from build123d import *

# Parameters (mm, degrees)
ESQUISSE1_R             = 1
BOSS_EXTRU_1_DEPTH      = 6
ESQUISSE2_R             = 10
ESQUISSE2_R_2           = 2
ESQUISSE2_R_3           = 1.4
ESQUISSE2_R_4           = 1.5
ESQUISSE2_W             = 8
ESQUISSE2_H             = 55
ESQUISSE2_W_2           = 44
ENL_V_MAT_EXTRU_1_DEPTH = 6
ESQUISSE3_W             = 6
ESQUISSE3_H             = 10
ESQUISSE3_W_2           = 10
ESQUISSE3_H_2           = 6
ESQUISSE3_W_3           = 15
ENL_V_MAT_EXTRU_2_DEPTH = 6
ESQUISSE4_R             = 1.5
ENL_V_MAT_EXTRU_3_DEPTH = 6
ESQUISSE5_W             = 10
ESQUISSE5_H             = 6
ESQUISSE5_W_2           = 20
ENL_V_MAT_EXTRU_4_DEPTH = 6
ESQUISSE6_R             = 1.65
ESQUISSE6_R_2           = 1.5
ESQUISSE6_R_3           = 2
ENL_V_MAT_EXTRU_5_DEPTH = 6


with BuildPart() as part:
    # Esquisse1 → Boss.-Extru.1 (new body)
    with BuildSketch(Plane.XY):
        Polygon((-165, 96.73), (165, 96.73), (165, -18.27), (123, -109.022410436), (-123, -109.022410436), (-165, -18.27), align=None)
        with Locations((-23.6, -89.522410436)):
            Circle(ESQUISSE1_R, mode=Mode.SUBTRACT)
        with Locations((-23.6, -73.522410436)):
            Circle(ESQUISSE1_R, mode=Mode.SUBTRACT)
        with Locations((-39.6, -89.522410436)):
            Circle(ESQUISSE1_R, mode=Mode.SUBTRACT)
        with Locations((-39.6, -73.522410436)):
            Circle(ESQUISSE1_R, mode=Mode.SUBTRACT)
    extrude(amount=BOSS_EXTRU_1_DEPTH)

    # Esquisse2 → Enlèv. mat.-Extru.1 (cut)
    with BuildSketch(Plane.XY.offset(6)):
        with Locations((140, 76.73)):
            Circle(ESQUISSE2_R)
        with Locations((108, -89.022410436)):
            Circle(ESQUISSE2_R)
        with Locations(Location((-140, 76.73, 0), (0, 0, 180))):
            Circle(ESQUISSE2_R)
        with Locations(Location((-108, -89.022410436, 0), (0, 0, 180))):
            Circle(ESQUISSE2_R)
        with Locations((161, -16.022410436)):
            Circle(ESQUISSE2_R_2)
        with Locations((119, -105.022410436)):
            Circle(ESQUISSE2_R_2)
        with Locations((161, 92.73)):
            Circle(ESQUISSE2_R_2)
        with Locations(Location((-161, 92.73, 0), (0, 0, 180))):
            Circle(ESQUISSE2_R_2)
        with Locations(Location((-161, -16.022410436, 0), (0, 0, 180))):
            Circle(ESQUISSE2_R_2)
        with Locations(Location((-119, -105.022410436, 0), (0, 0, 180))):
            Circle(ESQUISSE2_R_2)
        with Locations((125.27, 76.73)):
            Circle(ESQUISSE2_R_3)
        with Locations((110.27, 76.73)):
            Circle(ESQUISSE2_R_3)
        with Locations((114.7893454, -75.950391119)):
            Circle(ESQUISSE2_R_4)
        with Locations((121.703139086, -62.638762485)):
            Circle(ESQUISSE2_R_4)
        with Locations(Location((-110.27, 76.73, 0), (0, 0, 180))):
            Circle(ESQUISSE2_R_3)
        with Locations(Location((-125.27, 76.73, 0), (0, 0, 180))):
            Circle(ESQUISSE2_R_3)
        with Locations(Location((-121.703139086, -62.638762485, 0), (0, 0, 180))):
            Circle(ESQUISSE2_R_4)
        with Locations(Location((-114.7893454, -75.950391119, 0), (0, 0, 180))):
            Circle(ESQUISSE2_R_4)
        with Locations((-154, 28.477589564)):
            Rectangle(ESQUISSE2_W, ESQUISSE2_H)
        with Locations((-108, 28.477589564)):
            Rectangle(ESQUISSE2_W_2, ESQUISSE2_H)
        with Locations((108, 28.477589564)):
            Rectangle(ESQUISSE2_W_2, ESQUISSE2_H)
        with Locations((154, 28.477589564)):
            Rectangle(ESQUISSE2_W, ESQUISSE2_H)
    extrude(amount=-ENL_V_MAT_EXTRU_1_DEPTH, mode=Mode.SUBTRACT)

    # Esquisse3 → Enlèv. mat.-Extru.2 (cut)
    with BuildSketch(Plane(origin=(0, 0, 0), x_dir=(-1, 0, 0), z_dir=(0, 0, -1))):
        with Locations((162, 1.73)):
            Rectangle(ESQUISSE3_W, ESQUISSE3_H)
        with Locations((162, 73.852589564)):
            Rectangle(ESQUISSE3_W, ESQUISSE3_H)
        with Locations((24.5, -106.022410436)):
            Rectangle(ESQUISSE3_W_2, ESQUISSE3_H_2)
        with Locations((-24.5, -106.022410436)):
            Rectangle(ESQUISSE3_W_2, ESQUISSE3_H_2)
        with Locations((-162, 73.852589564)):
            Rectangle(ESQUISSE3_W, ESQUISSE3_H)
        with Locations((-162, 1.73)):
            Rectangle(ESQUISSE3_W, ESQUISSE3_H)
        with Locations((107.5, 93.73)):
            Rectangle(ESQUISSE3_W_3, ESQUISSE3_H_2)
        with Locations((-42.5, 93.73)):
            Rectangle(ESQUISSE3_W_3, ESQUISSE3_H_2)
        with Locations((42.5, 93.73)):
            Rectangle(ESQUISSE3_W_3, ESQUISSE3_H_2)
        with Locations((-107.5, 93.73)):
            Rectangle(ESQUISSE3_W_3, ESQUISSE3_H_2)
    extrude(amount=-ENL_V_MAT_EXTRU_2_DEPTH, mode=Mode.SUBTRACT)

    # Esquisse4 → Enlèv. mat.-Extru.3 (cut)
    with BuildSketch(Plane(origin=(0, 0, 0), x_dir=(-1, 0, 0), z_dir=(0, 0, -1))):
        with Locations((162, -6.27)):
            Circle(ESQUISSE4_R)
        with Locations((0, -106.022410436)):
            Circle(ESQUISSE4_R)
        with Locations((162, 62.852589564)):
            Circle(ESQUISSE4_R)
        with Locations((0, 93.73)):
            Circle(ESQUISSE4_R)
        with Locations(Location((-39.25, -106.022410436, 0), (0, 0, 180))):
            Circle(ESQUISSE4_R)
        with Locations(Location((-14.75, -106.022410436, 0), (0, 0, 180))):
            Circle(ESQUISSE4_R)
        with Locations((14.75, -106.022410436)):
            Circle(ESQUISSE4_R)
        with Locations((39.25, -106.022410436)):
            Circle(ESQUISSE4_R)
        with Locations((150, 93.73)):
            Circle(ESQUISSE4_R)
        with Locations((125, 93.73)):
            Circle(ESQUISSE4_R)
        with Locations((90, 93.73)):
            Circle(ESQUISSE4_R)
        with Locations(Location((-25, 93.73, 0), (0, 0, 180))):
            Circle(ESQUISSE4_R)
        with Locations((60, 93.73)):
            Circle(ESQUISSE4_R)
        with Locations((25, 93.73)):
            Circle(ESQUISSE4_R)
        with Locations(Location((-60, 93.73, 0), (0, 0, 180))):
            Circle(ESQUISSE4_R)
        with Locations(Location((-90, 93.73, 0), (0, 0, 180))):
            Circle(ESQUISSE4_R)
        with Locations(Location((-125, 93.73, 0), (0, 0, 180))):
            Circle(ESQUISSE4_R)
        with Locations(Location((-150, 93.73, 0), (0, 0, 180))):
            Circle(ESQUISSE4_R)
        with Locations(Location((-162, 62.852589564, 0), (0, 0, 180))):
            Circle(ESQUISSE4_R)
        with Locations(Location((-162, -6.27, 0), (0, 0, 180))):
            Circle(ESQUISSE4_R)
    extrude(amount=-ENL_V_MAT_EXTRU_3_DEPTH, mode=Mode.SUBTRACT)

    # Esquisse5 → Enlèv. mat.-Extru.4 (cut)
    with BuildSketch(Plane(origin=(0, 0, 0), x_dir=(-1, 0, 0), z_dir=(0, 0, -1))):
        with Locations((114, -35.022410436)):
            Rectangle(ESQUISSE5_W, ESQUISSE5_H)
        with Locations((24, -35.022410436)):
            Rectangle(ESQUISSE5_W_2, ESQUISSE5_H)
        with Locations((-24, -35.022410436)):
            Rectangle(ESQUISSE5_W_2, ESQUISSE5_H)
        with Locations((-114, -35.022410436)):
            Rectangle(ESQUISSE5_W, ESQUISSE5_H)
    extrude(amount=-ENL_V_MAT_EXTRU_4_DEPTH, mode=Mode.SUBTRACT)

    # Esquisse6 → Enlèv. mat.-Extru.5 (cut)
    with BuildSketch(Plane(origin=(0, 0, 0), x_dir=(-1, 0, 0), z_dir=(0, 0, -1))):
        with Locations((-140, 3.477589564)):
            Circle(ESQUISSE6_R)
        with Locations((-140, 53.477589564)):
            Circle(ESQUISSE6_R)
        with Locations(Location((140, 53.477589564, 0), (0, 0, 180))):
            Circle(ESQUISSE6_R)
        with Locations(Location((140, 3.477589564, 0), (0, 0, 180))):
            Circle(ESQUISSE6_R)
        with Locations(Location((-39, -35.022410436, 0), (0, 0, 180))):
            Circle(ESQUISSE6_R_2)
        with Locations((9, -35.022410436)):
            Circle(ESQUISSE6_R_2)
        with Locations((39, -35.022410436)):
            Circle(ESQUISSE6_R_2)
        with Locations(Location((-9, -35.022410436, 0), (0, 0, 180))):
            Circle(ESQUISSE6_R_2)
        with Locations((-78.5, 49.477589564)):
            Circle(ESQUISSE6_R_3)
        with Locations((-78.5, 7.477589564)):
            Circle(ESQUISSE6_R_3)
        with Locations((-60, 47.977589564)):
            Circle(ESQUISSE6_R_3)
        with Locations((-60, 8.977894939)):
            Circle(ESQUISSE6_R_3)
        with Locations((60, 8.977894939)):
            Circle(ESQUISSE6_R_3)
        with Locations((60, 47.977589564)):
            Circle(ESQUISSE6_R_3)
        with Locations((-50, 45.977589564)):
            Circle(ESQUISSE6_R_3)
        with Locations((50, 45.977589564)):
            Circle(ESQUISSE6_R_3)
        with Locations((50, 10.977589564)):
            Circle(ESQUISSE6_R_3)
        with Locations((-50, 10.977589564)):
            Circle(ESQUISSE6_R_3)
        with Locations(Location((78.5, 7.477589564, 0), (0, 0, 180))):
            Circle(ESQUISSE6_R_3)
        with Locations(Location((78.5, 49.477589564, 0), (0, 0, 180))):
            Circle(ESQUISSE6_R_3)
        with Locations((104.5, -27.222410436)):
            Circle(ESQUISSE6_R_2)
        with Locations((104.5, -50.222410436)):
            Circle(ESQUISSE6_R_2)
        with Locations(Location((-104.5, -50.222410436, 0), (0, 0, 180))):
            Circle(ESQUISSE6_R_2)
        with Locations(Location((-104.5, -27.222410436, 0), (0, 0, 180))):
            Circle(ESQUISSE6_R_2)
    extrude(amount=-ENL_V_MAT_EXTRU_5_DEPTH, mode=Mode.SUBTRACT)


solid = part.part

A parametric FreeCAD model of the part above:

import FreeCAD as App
import Part
import Sketcher

V = App.Vector
Q = App.Units.Quantity

doc = App.newDocument("Part")
params = doc.addObject("Spreadsheet::Sheet", "Params")
for row, (alias, value) in enumerate([
    ("sketch1_diameter", "2 mm"),
    ("sketch1_width", "330 mm"),
    ("sketch1_width2", "246 mm"),
    ("sketch1_height", "115 mm"),
    ("sketch1_length", "100 mm"),
    ("pad1_length", "6 mm"),
    ("sketch2_diameter", "20 mm"),
    ("sketch2_diameter2", "4 mm"),
    ("sketch2_diameter3", "3 mm"),
    ("sketch2_diameter4", "2.8 mm"),
    ("sketch2_width", "8 mm"),
    ("pocket1_length", "6 mm"),
    ("sketch3_width", "6 mm"),
    ("sketch3_width2", "10 mm"),
    ("sketch3_width3", "15 mm"),
    ("pocket2_length", "6 mm"),
    ("sketch4_diameter", "3 mm"),
    ("pocket3_length", "6 mm"),
    ("sketch5_width", "10 mm"),
    ("sketch5_width2", "20 mm"),
    ("sketch5_height", "6 mm"),
    ("pocket4_length", "6 mm"),
    ("sketch6_diameter", "3 mm"),
    ("sketch6_diameter2", "4 mm"),
    ("sketch6_diameter3", "3.3 mm"),
    ("pocket5_length", "6 mm"),
], start=1):
    params.set(f"A{row}", alias)
    params.set(f"B{row}", "=" + value)
    params.setAlias(f"B{row}", alias)

body = doc.addObject("PartDesign::Body", "Body")

# Sketch on XY plane
sketch1 = doc.addObject("Sketcher::SketchObject", "Sketch")
body.addObject(sketch1)
sketch1.AttachmentSupport = (doc.XY_Plane, [""])
sketch1.MapMode = "FlatFace"
sketch1.addGeometry([
    Part.LineSegment(V(165, 96.7, 0), V(-165, 96.7, 0)),  # 0
    Part.LineSegment(V(-165, 96.7, 0), V(-165, -18.3, 0)),  # 1
    Part.LineSegment(V(-165, -18.3, 0), V(-123, -109, 0)),  # 2
    Part.LineSegment(V(-123, -109, 0), V(123, -109, 0)),  # 3
    Part.LineSegment(V(123, -109, 0), V(165, -18.3, 0)),  # 4
    Part.LineSegment(V(165, -18.3, 0), V(165, 96.7, 0)),  # 5
    Part.Circle(V(-23.6, -89.5, 0), V(0, 0, 1), 1),  # 6
    Part.Circle(V(-39.6, -89.5, 0), V(0, 0, 1), 1),  # 7
    Part.Circle(V(-23.6, -73.5, 0), V(0, 0, 1), 1),  # 8
    Part.Circle(V(-39.6, -73.5, 0), V(0, 0, 1), 1),  # 9
], False)
sketch1.addConstraint([
    Sketcher.Constraint("Coincident", 0, 2, 1, 1),
    Sketcher.Constraint("Coincident", 1, 2, 2, 1),
    Sketcher.Constraint("Coincident", 2, 2, 3, 1),
    Sketcher.Constraint("Coincident", 3, 2, 4, 1),
    Sketcher.Constraint("Coincident", 4, 2, 5, 1),
    Sketcher.Constraint("Coincident", 5, 2, 0, 1),
    Sketcher.Constraint("Horizontal", 0),
    Sketcher.Constraint("Vertical", 1),
    Sketcher.Constraint("Horizontal", 3),
    Sketcher.Constraint("Vertical", 5),
    Sketcher.Constraint("Equal", 6, 7),
    Sketcher.Constraint("Equal", 7, 8),
    Sketcher.Constraint("Equal", 8, 9),
    Sketcher.Constraint("Symmetric", 1, 2, 4, 2, -2),
    Sketcher.Constraint("Horizontal", 6, 3, 7, 3),
    Sketcher.Constraint("Horizontal", 8, 3, 9, 3),
    Sketcher.Constraint("Vertical", 6, 3, 8, 3),
    Sketcher.Constraint("Vertical", 7, 3, 9, 3),
    Sketcher.Constraint("Equal", 2, 4),
    Sketcher.Constraint("Diameter", 6, Q("2 mm")),
    Sketcher.Constraint("DistanceX", 0, 2, 0, 1, Q("330 mm")),
    Sketcher.Constraint("DistanceX", 3, 1, 3, 2, Q("246 mm")),
    Sketcher.Constraint("DistanceY", 1, 2, 1, 1, Q("115 mm")),
    Sketcher.Constraint("Distance", 2, Q("100 mm")),
    Sketcher.Constraint("DistanceX", 7, 3, 6, 3, Q("16 mm")),
    Sketcher.Constraint("DistanceY", 6, 3, 8, 3, Q("16 mm")),
    Sketcher.Constraint("DistanceX", 6, 3, -1, 1, Q("23.6 mm")),
    Sketcher.Constraint("DistanceY", 2, 2, 7, 3, Q("19.5 mm")),
    Sketcher.Constraint("DistanceY", -1, 1, 0, 2, Q("96.73 mm")),
])
sketch1.setExpression("Constraints[19]", "Params.sketch1_diameter")
sketch1.setExpression("Constraints[20]", "Params.sketch1_width")
sketch1.setExpression("Constraints[21]", "Params.sketch1_width2")
sketch1.setExpression("Constraints[22]", "Params.sketch1_height")
sketch1.setExpression("Constraints[23]", "Params.sketch1_length")
pad1 = doc.addObject("PartDesign::Pad", "Pad")
body.addObject(pad1)
pad1.Profile = sketch1
pad1.setExpression("Length", "Params.pad1_length")

# Sketch on XY plane
sketch2 = doc.addObject("Sketcher::SketchObject", "Sketch001")
body.addObject(sketch2)
sketch2.AttachmentSupport = (doc.XY_Plane, [""])
sketch2.MapMode = "FlatFace"
sketch2.AttachmentOffset = App.Placement(V(0, 0, 6), App.Rotation())
sketch2.addGeometry([
    Part.Circle(V(140, 76.7, 0), V(0, 0, 1), 10),  # 0
    Part.Circle(V(108, -89, 0), V(0, 0, 1), 10),  # 1
    Part.Circle(V(-140, 76.7, 0), V(0, 0, 1), 10),  # 2
    Part.Circle(V(-108, -89, 0), V(0, 0, 1), 10),  # 3
    Part.Circle(V(161, -16, 0), V(0, 0, 1), 2),  # 4
    Part.Circle(V(119, -105, 0), V(0, 0, 1), 2),  # 5
    Part.Circle(V(161, 92.7, 0), V(0, 0, 1), 2),  # 6
    Part.Circle(V(-161, 92.7, 0), V(0, 0, 1), 2),  # 7
    Part.Circle(V(-161, -16, 0), V(0, 0, 1), 2),  # 8
    Part.Circle(V(-119, -105, 0), V(0, 0, 1), 2),  # 9
    Part.Circle(V(125.3, 76.7, 0), V(0, 0, 1), 1.4),  # 10
    Part.Circle(V(110.3, 76.7, 0), V(0, 0, 1), 1.4),  # 11
    Part.Circle(V(114.8, -76, 0), V(0, 0, 1), 1.5),  # 12
    Part.Circle(V(121.7, -62.6, 0), V(0, 0, 1), 1.5),  # 13
    Part.Circle(V(-110.3, 76.7, 0), V(0, 0, 1), 1.4),  # 14
    Part.Circle(V(-125.3, 76.7, 0), V(0, 0, 1), 1.4),  # 15
    Part.Circle(V(-121.7, -62.6, 0), V(0, 0, 1), 1.5),  # 16
    Part.Circle(V(-114.8, -76, 0), V(0, 0, 1), 1.5),  # 17
    Part.LineSegment(V(-158, 56, 0), V(-158, 1, 0)),  # 18
    Part.LineSegment(V(-158, 1, 0), V(-150, 1, 0)),  # 19
    Part.LineSegment(V(-150, 1, 0), V(-150, 56, 0)),  # 20
    Part.LineSegment(V(-150, 56, 0), V(-158, 56, 0)),  # 21
    Part.LineSegment(V(-130, 56, 0), V(-130, 1, 0)),  # 22
    Part.LineSegment(V(-130, 1, 0), V(-86, 1, 0)),  # 23
    Part.LineSegment(V(-86, 1, 0), V(-86, 56, 0)),  # 24
    Part.LineSegment(V(-86, 56, 0), V(-130, 56, 0)),  # 25
    Part.LineSegment(V(86, 56, 0), V(86, 1, 0)),  # 26
    Part.LineSegment(V(86, 1, 0), V(130, 1, 0)),  # 27
    Part.LineSegment(V(130, 1, 0), V(130, 56, 0)),  # 28
    Part.LineSegment(V(130, 56, 0), V(86, 56, 0)),  # 29
    Part.LineSegment(V(150, 56, 0), V(150, 1, 0)),  # 30
    Part.LineSegment(V(150, 1, 0), V(158, 1, 0)),  # 31
    Part.LineSegment(V(158, 1, 0), V(158, 56, 0)),  # 32
    Part.LineSegment(V(158, 56, 0), V(150, 56, 0)),  # 33
], False)
sketch2.addConstraint([
    Sketcher.Constraint("Coincident", 18, 2, 19, 1),
    Sketcher.Constraint("Coincident", 19, 2, 20, 1),
    Sketcher.Constraint("Coincident", 20, 2, 21, 1),
    Sketcher.Constraint("Coincident", 21, 2, 18, 1),
    Sketcher.Constraint("Coincident", 22, 2, 23, 1),
    Sketcher.Constraint("Coincident", 23, 2, 24, 1),
    Sketcher.Constraint("Coincident", 24, 2, 25, 1),
    Sketcher.Constraint("Coincident", 25, 2, 22, 1),
    Sketcher.Constraint("Coincident", 26, 2, 27, 1),
    Sketcher.Constraint("Coincident", 27, 2, 28, 1),
    Sketcher.Constraint("Coincident", 28, 2, 29, 1),
    Sketcher.Constraint("Coincident", 29, 2, 26, 1),
    Sketcher.Constraint("Coincident", 30, 2, 31, 1),
    Sketcher.Constraint("Coincident", 31, 2, 32, 1),
    Sketcher.Constraint("Coincident", 32, 2, 33, 1),
    Sketcher.Constraint("Coincident", 33, 2, 30, 1),
    Sketcher.Constraint("Vertical", 18),
    Sketcher.Constraint("Horizontal", 19),
    Sketcher.Constraint("Vertical", 20),
    Sketcher.Constraint("Horizontal", 21),
    Sketcher.Constraint("Vertical", 22),
    Sketcher.Constraint("Horizontal", 23),
    Sketcher.Constraint("Vertical", 24),
    Sketcher.Constraint("Horizontal", 25),
    Sketcher.Constraint("Vertical", 26),
    Sketcher.Constraint("Horizontal", 27),
    Sketcher.Constraint("Vertical", 28),
    Sketcher.Constraint("Horizontal", 29),
    Sketcher.Constraint("Vertical", 30),
    Sketcher.Constraint("Horizontal", 31),
    Sketcher.Constraint("Vertical", 32),
    Sketcher.Constraint("Horizontal", 33),
    Sketcher.Constraint("Equal", 0, 1),
    Sketcher.Constraint("Equal", 1, 2),
    Sketcher.Constraint("Equal", 2, 3),
    Sketcher.Constraint("Equal", 4, 5),
    Sketcher.Constraint("Equal", 5, 6),
    Sketcher.Constraint("Equal", 6, 7),
    Sketcher.Constraint("Equal", 7, 8),
    Sketcher.Constraint("Equal", 8, 9),
    Sketcher.Constraint("Equal", 10, 11),
    Sketcher.Constraint("Equal", 12, 13),
    Sketcher.Constraint("Equal", 11, 14),
    Sketcher.Constraint("Equal", 14, 15),
    Sketcher.Constraint("Equal", 13, 16),
    Sketcher.Constraint("Equal", 16, 17),
    Sketcher.Constraint("Symmetric", 0, 3, 2, 3, -2),
    Sketcher.Constraint("Symmetric", 1, 3, 3, 3, -2),
    Sketcher.Constraint("Symmetric", 6, 3, 7, 3, -2),
    Sketcher.Constraint("Symmetric", 4, 3, 8, 3, -2),
    Sketcher.Constraint("Symmetric", 5, 3, 9, 3, -2),
    Sketcher.Constraint("Symmetric", 11, 3, 14, 3, -2),
    Sketcher.Constraint("Symmetric", 10, 3, 15, 3, -2),
    Sketcher.Constraint("Symmetric", 13, 3, 16, 3, -2),
    Sketcher.Constraint("Symmetric", 12, 3, 17, 3, -2),
    Sketcher.Constraint("Symmetric", 23, 2, 26, 2, -2),
    Sketcher.Constraint("Symmetric", 25, 2, 28, 2, -2),
    Sketcher.Constraint("Symmetric", 19, 2, 30, 2, -2),
    Sketcher.Constraint("Symmetric", 21, 2, 32, 2, -2),
    Sketcher.Constraint("Horizontal", 2, 3, 10, 3),
    Sketcher.Constraint("Horizontal", 10, 3, 11, 3),
    Sketcher.Constraint("Horizontal", 19, 2, 22, 2),
    Sketcher.Constraint("Horizontal", 21, 2, 24, 2),
    Sketcher.Constraint("Vertical", 4, 3, 6, 3),
    Sketcher.Constraint("Diameter", 0, Q("20 mm")),
    Sketcher.Constraint("Diameter", 4, Q("4 mm")),
    Sketcher.Constraint("Diameter", 12, Q("3 mm")),
    Sketcher.Constraint("Diameter", 10, Q("2.8 mm")),
    Sketcher.Constraint("DistanceX", 19, 1, 19, 2, Q("8 mm")),
    Sketcher.Constraint("DistanceX", 23, 1, 23, 2, Q("44 mm")),
    Sketcher.Constraint("DistanceY", 18, 2, 18, 1, Q("55 mm")),
    Sketcher.Constraint("DistanceX", -1, 1, 0, 3, Q("140 mm")),
    Sketcher.Constraint("DistanceX", -1, 1, 1, 3, Q("108 mm")),
    Sketcher.Constraint("DistanceX", -1, 1, 4, 3, Q("161 mm")),
    Sketcher.Constraint("DistanceX", -1, 1, 5, 3, Q("119 mm")),
    Sketcher.Constraint("DistanceX", 18, 2, -1, 1, Q("158 mm")),
    Sketcher.Constraint("DistanceX", 22, 2, -1, 1, Q("130 mm")),
    Sketcher.Constraint("DistanceY", 1, 3, 4, 3, Q("73 mm")),
    Sketcher.Constraint("DistanceY", 5, 3, 1, 3, Q("16 mm")),
    Sketcher.Constraint("DistanceY", 0, 3, 6, 3, Q("16 mm")),
    Sketcher.Constraint("DistanceX", 11, 3, 10, 3, Q("15 mm")),
    Sketcher.Constraint("DistanceY", 8, 3, 18, 2, Q("17 mm")),
    Sketcher.Constraint("DistanceY", -1, 1, 0, 3, Q("76.73 mm")),
    Sketcher.Constraint("DistanceX", -1, 1, 10, 3, Q("125.27 mm")),
    Sketcher.Constraint("DistanceY", 1, 3, -1, 1, Q("89.02241 mm")),
    Sketcher.Constraint("DistanceY", 12, 3, -1, 1, Q("75.950391 mm")),
    Sketcher.Constraint("DistanceX", -1, 1, 13, 3, Q("121.703139 mm")),
    Sketcher.Constraint("DistanceY", 12, 3, 13, 3, Q("13.311629 mm")),
    Sketcher.Constraint("DistanceX", -1, 1, 12, 3, Q("114.789345 mm")),
])
sketch2.setExpression("Constraints[64]", "Params.sketch2_diameter")
sketch2.setExpression("Constraints[65]", "Params.sketch2_diameter2")
sketch2.setExpression("Constraints[66]", "Params.sketch2_diameter3")
sketch2.setExpression("Constraints[67]", "Params.sketch2_diameter4")
sketch2.setExpression("Constraints[68]", "Params.sketch2_width")
pocket1 = doc.addObject("PartDesign::Pocket", "Pocket")
body.addObject(pocket1)
pocket1.Profile = sketch2
pocket1.setExpression("Length", "Params.pocket1_length")

# Sketch on XY plane
sketch3 = doc.addObject("Sketcher::SketchObject", "Sketch002")
body.addObject(sketch3)
sketch3.AttachmentSupport = (doc.XY_Plane, [""])
sketch3.MapMode = "FlatFace"
sketch3.addGeometry([
    Part.LineSegment(V(-159, 7, 0), V(-159, -3, 0)),  # 0
    Part.LineSegment(V(-159, -3, 0), V(-165, -3, 0)),  # 1
    Part.LineSegment(V(-165, -3, 0), V(-165, 7, 0)),  # 2
    Part.LineSegment(V(-165, 7, 0), V(-159, 7, 0)),  # 3
    Part.LineSegment(V(-159, 79, 0), V(-159, 69, 0)),  # 4
    Part.LineSegment(V(-159, 69, 0), V(-165, 69, 0)),  # 5
    Part.LineSegment(V(-165, 69, 0), V(-165, 79, 0)),  # 6
    Part.LineSegment(V(-165, 79, 0), V(-159, 79, 0)),  # 7
    Part.LineSegment(V(-20, -103, 0), V(-20, -109, 0)),  # 8
    Part.LineSegment(V(-20, -109, 0), V(-30, -109, 0)),  # 9
    Part.LineSegment(V(-30, -109, 0), V(-30, -103, 0)),  # 10
    Part.LineSegment(V(-30, -103, 0), V(-20, -103, 0)),  # 11
    Part.LineSegment(V(30, -103, 0), V(30, -109, 0)),  # 12
    Part.LineSegment(V(30, -109, 0), V(20, -109, 0)),  # 13
    Part.LineSegment(V(20, -109, 0), V(20, -103, 0)),  # 14
    Part.LineSegment(V(20, -103, 0), V(30, -103, 0)),  # 15
    Part.LineSegment(V(165, 79, 0), V(165, 69, 0)),  # 16
    Part.LineSegment(V(165, 69, 0), V(159, 69, 0)),  # 17
    Part.LineSegment(V(159, 69, 0), V(159, 79, 0)),  # 18
    Part.LineSegment(V(159, 79, 0), V(165, 79, 0)),  # 19
    Part.LineSegment(V(165, 7, 0), V(165, -3, 0)),  # 20
    Part.LineSegment(V(165, -3, 0), V(159, -3, 0)),  # 21
    Part.LineSegment(V(159, -3, 0), V(159, 7, 0)),  # 22
    Part.LineSegment(V(159, 7, 0), V(165, 7, 0)),  # 23
    Part.LineSegment(V(-100, 97, 0), V(-100, 91, 0)),  # 24
    Part.LineSegment(V(-100, 91, 0), V(-115, 91, 0)),  # 25
    Part.LineSegment(V(-115, 91, 0), V(-115, 97, 0)),  # 26
    Part.LineSegment(V(-115, 97, 0), V(-100, 97, 0)),  # 27
    Part.LineSegment(V(50, 97, 0), V(50, 91, 0)),  # 28
    Part.LineSegment(V(50, 91, 0), V(35, 91, 0)),  # 29
    Part.LineSegment(V(35, 91, 0), V(35, 97, 0)),  # 30
    Part.LineSegment(V(35, 97, 0), V(50, 97, 0)),  # 31
    Part.LineSegment(V(-35, 97, 0), V(-35, 91, 0)),  # 32
    Part.LineSegment(V(-35, 91, 0), V(-50, 91, 0)),  # 33
    Part.LineSegment(V(-50, 91, 0), V(-50, 97, 0)),  # 34
    Part.LineSegment(V(-50, 97, 0), V(-35, 97, 0)),  # 35
    Part.LineSegment(V(115, 97, 0), V(115, 91, 0)),  # 36
    Part.LineSegment(V(115, 91, 0), V(100, 91, 0)),  # 37
    Part.LineSegment(V(100, 91, 0), V(100, 97, 0)),  # 38
    Part.LineSegment(V(100, 97, 0), V(115, 97, 0)),  # 39
], False)
sketch3.addConstraint([
    Sketcher.Constraint("Coincident", 0, 2, 1, 1),
    Sketcher.Constraint("Coincident", 1, 2, 2, 1),
    Sketcher.Constraint("Coincident", 2, 2, 3, 1),
    Sketcher.Constraint("Coincident", 3, 2, 0, 1),
    Sketcher.Constraint("Coincident", 4, 2, 5, 1),
    Sketcher.Constraint("Coincident", 5, 2, 6, 1),
    Sketcher.Constraint("Coincident", 6, 2, 7, 1),
    Sketcher.Constraint("Coincident", 7, 2, 4, 1),
    Sketcher.Constraint("Coincident", 8, 2, 9, 1),
    Sketcher.Constraint("Coincident", 9, 2, 10, 1),
    Sketcher.Constraint("Coincident", 10, 2, 11, 1),
    Sketcher.Constraint("Coincident", 11, 2, 8, 1),
    Sketcher.Constraint("Coincident", 12, 2, 13, 1),
    Sketcher.Constraint("Coincident", 13, 2, 14, 1),
    Sketcher.Constraint("Coincident", 14, 2, 15, 1),
    Sketcher.Constraint("Coincident", 15, 2, 12, 1),
    Sketcher.Constraint("Coincident", 16, 2, 17, 1),
    Sketcher.Constraint("Coincident", 17, 2, 18, 1),
    Sketcher.Constraint("Coincident", 18, 2, 19, 1),
    Sketcher.Constraint("Coincident", 19, 2, 16, 1),
    Sketcher.Constraint("Coincident", 20, 2, 21, 1),
    Sketcher.Constraint("Coincident", 21, 2, 22, 1),
    Sketcher.Constraint("Coincident", 22, 2, 23, 1),
    Sketcher.Constraint("Coincident", 23, 2, 20, 1),
    Sketcher.Constraint("Coincident", 24, 2, 25, 1),
    Sketcher.Constraint("Coincident", 25, 2, 26, 1),
    Sketcher.Constraint("Coincident", 26, 2, 27, 1),
    Sketcher.Constraint("Coincident", 27, 2, 24, 1),
    Sketcher.Constraint("Coincident", 28, 2, 29, 1),
    Sketcher.Constraint("Coincident", 29, 2, 30, 1),
    Sketcher.Constraint("Coincident", 30, 2, 31, 1),
    Sketcher.Constraint("Coincident", 31, 2, 28, 1),
    Sketcher.Constraint("Coincident", 32, 2, 33, 1),
    Sketcher.Constraint("Coincident", 33, 2, 34, 1),
    Sketcher.Constraint("Coincident", 34, 2, 35, 1),
    Sketcher.Constraint("Coincident", 35, 2, 32, 1),
    Sketcher.Constraint("Coincident", 36, 2, 37, 1),
    Sketcher.Constraint("Coincident", 37, 2, 38, 1),
    Sketcher.Constraint("Coincident", 38, 2, 39, 1),
    Sketcher.Constraint("Coincident", 39, 2, 36, 1),
    Sketcher.Constraint("Vertical", 0),
    Sketcher.Constraint("Horizontal", 1),
    Sketcher.Constraint("Vertical", 2),
    Sketcher.Constraint("Horizontal", 3),
    Sketcher.Constraint("Vertical", 4),
    Sketcher.Constraint("Horizontal", 5),
    Sketcher.Constraint("Vertical", 6),
    Sketcher.Constraint("Horizontal", 7),
    Sketcher.Constraint("Vertical", 8),
    Sketcher.Constraint("Horizontal", 9),
    Sketcher.Constraint("Vertical", 10),
    Sketcher.Constraint("Horizontal", 11),
    Sketcher.Constraint("Vertical", 12),
    Sketcher.Constraint("Horizontal", 13),
    Sketcher.Constraint("Vertical", 14),
    Sketcher.Constraint("Horizontal", 15),
    Sketcher.Constraint("Vertical", 16),
    Sketcher.Constraint("Horizontal", 17),
    Sketcher.Constraint("Vertical", 18),
    Sketcher.Constraint("Horizontal", 19),
    Sketcher.Constraint("Vertical", 20),
    Sketcher.Constraint("Horizontal", 21),
    Sketcher.Constraint("Vertical", 22),
    Sketcher.Constraint("Horizontal", 23),
    Sketcher.Constraint("Vertical", 24),
    Sketcher.Constraint("Horizontal", 25),
    Sketcher.Constraint("Vertical", 26),
    Sketcher.Constraint("Horizontal", 27),
    Sketcher.Constraint("Vertical", 28),
    Sketcher.Constraint("Horizontal", 29),
    Sketcher.Constraint("Vertical", 30),
    Sketcher.Constraint("Horizontal", 31),
    Sketcher.Constraint("Vertical", 32),
    Sketcher.Constraint("Horizontal", 33),
    Sketcher.Constraint("Vertical", 34),
    Sketcher.Constraint("Horizontal", 35),
    Sketcher.Constraint("Vertical", 36),
    Sketcher.Constraint("Horizontal", 37),
    Sketcher.Constraint("Vertical", 38),
    Sketcher.Constraint("Horizontal", 39),
    Sketcher.Constraint("Symmetric", 9, 2, 12, 2, -2),
    Sketcher.Constraint("Symmetric", 11, 2, 14, 2, -2),
    Sketcher.Constraint("Symmetric", 5, 2, 16, 2, -2),
    Sketcher.Constraint("Symmetric", 7, 2, 18, 2, -2),
    Sketcher.Constraint("Symmetric", 1, 2, 20, 2, -2),
    Sketcher.Constraint("Symmetric", 3, 2, 22, 2, -2),
    Sketcher.Constraint("Symmetric", 29, 2, 32, 2, -2),
    Sketcher.Constraint("Symmetric", 31, 2, 34, 2, -2),
    Sketcher.Constraint("Symmetric", 25, 2, 36, 2, -2),
    Sketcher.Constraint("Symmetric", 27, 2, 38, 2, -2),
    Sketcher.Constraint("Horizontal", 25, 2, 28, 2),
    Sketcher.Constraint("Horizontal", 27, 2, 30, 2),
    Sketcher.Constraint("Vertical", 3, 2, 4, 2),
    Sketcher.Constraint("Vertical", 2, 2, 5, 2),
    Sketcher.Constraint("Equal", 27, 29),
    Sketcher.Constraint("Equal", 15, 0),
    Sketcher.Constraint("Equal", 2, 4),
    Sketcher.Constraint("Equal", 23, 8),
    Sketcher.Constraint("Equal", 14, 24),
    Sketcher.Constraint("DistanceX", 1, 2, 1, 1, Q("6 mm")),
    Sketcher.Constraint("DistanceX", 9, 2, 9, 1, Q("10 mm")),
    Sketcher.Constraint("DistanceX", 25, 2, 25, 1, Q("15 mm")),
    Sketcher.Constraint("DistanceX", 0, 2, -1, 1, Q("159 mm")),
    Sketcher.Constraint("DistanceX", 24, 2, -1, 1, Q("100 mm")),
    Sketcher.Constraint("DistanceX", -1, 1, 28, 2, Q("50 mm")),
    Sketcher.Constraint("DistanceX", 8, 2, 12, 2, Q("49 mm")),
    Sketcher.Constraint("DistanceY", 3, 2, 24, 2, Q("84 mm")),
    Sketcher.Constraint("DistanceY", 0, 2, -1, 1, Q("3.27 mm")),
    Sketcher.Constraint("DistanceY", 8, 2, 4, 2, Q("177.875 mm")),
    Sketcher.Constraint("DistanceY", -1, 1, 4, 2, Q("68.85259 mm")),
])
sketch3.setExpression("Constraints[99]", "Params.sketch3_width")
sketch3.setExpression("Constraints[100]", "Params.sketch3_width2")
sketch3.setExpression("Constraints[101]", "Params.sketch3_width3")
pocket2 = doc.addObject("PartDesign::Pocket", "Pocket001")
body.addObject(pocket2)
pocket2.Profile = sketch3
pocket2.setExpression("Length", "Params.pocket2_length")
pocket2.Reversed = True

# Sketch on XY plane
sketch4 = doc.addObject("Sketcher::SketchObject", "Sketch003")
body.addObject(sketch4)
sketch4.AttachmentSupport = (doc.XY_Plane, [""])
sketch4.MapMode = "FlatFace"
sketch4.addGeometry([
    Part.Circle(V(-162, -6.3, 0), V(0, 0, 1), 1.5),  # 0
    Part.Circle(V(0, -106, 0), V(0, 0, 1), 1.5),  # 1
    Part.Circle(V(-162, 62.9, 0), V(0, 0, 1), 1.5),  # 2
    Part.Circle(V(0, 93.7, 0), V(0, 0, 1), 1.5),  # 3
    Part.Circle(V(39.2, -106, 0), V(0, 0, 1), 1.5),  # 4
    Part.Circle(V(14.8, -106, 0), V(0, 0, 1), 1.5),  # 5
    Part.Circle(V(-14.8, -106, 0), V(0, 0, 1), 1.5),  # 6
    Part.Circle(V(-39.2, -106, 0), V(0, 0, 1), 1.5),  # 7
    Part.Circle(V(-150, 93.7, 0), V(0, 0, 1), 1.5),  # 8
    Part.Circle(V(-125, 93.7, 0), V(0, 0, 1), 1.5),  # 9
    Part.Circle(V(-90, 93.7, 0), V(0, 0, 1), 1.5),  # 10
    Part.Circle(V(25, 93.7, 0), V(0, 0, 1), 1.5),  # 11
    Part.Circle(V(-60, 93.7, 0), V(0, 0, 1), 1.5),  # 12
    Part.Circle(V(-25, 93.7, 0), V(0, 0, 1), 1.5),  # 13
    Part.Circle(V(60, 93.7, 0), V(0, 0, 1), 1.5),  # 14
    Part.Circle(V(90, 93.7, 0), V(0, 0, 1), 1.5),  # 15
    Part.Circle(V(125, 93.7, 0), V(0, 0, 1), 1.5),  # 16
    Part.Circle(V(150, 93.7, 0), V(0, 0, 1), 1.5),  # 17
    Part.Circle(V(162, 62.9, 0), V(0, 0, 1), 1.5),  # 18
    Part.Circle(V(162, -6.3, 0), V(0, 0, 1), 1.5),  # 19
], False)
sketch4.addConstraint([
    Sketcher.Constraint("Equal", 0, 1),
    Sketcher.Constraint("Equal", 1, 2),
    Sketcher.Constraint("Equal", 2, 3),
    Sketcher.Constraint("Equal", 3, 4),
    Sketcher.Constraint("Equal", 4, 5),
    Sketcher.Constraint("Equal", 5, 6),
    Sketcher.Constraint("Equal", 6, 7),
    Sketcher.Constraint("Equal", 7, 8),
    Sketcher.Constraint("Equal", 8, 9),
    Sketcher.Constraint("Equal", 9, 10),
    Sketcher.Constraint("Equal", 10, 11),
    Sketcher.Constraint("Equal", 11, 12),
    Sketcher.Constraint("Equal", 12, 13),
    Sketcher.Constraint("Equal", 13, 14),
    Sketcher.Constraint("Equal", 14, 15),
    Sketcher.Constraint("Equal", 15, 16),
    Sketcher.Constraint("Equal", 16, 17),
    Sketcher.Constraint("Equal", 17, 18),
    Sketcher.Constraint("Equal", 18, 19),
    Sketcher.Constraint("Symmetric", 5, 3, 6, 3, -2),
    Sketcher.Constraint("Symmetric", 4, 3, 7, 3, -2),
    Sketcher.Constraint("Symmetric", 11, 3, 13, 3, -2),
    Sketcher.Constraint("Symmetric", 12, 3, 14, 3, -2),
    Sketcher.Constraint("Symmetric", 10, 3, 15, 3, -2),
    Sketcher.Constraint("Symmetric", 9, 3, 16, 3, -2),
    Sketcher.Constraint("Symmetric", 8, 3, 17, 3, -2),
    Sketcher.Constraint("Symmetric", 2, 3, 18, 3, -2),
    Sketcher.Constraint("Symmetric", 0, 3, 19, 3, -2),
    Sketcher.Constraint("PointOnObject", 1, 3, -2),
    Sketcher.Constraint("PointOnObject", 3, 3, -2),
    Sketcher.Constraint("Horizontal", 1, 3, 4, 3),
    Sketcher.Constraint("Horizontal", 4, 3, 5, 3),
    Sketcher.Constraint("Horizontal", 3, 3, 8, 3),
    Sketcher.Constraint("Horizontal", 8, 3, 9, 3),
    Sketcher.Constraint("Horizontal", 9, 3, 10, 3),
    Sketcher.Constraint("Horizontal", 10, 3, 11, 3),
    Sketcher.Constraint("Horizontal", 11, 3, 12, 3),
    Sketcher.Constraint("Vertical", 0, 3, 2, 3),
    Sketcher.Constraint("Diameter", 0, Q("3 mm")),
    Sketcher.Constraint("DistanceX", 0, 3, -1, 1, Q("162 mm")),
    Sketcher.Constraint("DistanceX", 8, 3, -1, 1, Q("150 mm")),
    Sketcher.Constraint("DistanceX", 9, 3, -1, 1, Q("125 mm")),
    Sketcher.Constraint("DistanceX", 10, 3, -1, 1, Q("90 mm")),
    Sketcher.Constraint("DistanceX", -1, 1, 11, 3, Q("25 mm")),
    Sketcher.Constraint("DistanceX", 12, 3, -1, 1, Q("60 mm")),
    Sketcher.Constraint("DistanceY", 0, 3, 3, 3, Q("100 mm")),
    Sketcher.Constraint("DistanceX", 6, 3, 4, 3, Q("54 mm")),
    Sketcher.Constraint("DistanceX", 5, 3, 4, 3, Q("24.5 mm")),
    Sketcher.Constraint("DistanceY", 0, 3, -1, 1, Q("6.27 mm")),
    Sketcher.Constraint("DistanceY", 1, 3, 2, 3, Q("168.875 mm")),
    Sketcher.Constraint("DistanceY", 1, 3, -1, 1, Q("106.02241 mm")),
])
sketch4.setExpression("Constraints[38]", "Params.sketch4_diameter")
pocket3 = doc.addObject("PartDesign::Pocket", "Pocket002")
body.addObject(pocket3)
pocket3.Profile = sketch4
pocket3.setExpression("Length", "Params.pocket3_length")
pocket3.Reversed = True

# Sketch on XY plane
sketch5 = doc.addObject("Sketcher::SketchObject", "Sketch004")
body.addObject(sketch5)
sketch5.AttachmentSupport = (doc.XY_Plane, [""])
sketch5.MapMode = "FlatFace"
sketch5.addGeometry([
    Part.LineSegment(V(-109, -32, 0), V(-109, -38, 0)),  # 0
    Part.LineSegment(V(-109, -38, 0), V(-119, -38, 0)),  # 1
    Part.LineSegment(V(-119, -38, 0), V(-119, -32, 0)),  # 2
    Part.LineSegment(V(-119, -32, 0), V(-109, -32, 0)),  # 3
    Part.LineSegment(V(-14, -32, 0), V(-14, -38, 0)),  # 4
    Part.LineSegment(V(-14, -38, 0), V(-34, -38, 0)),  # 5
    Part.LineSegment(V(-34, -38, 0), V(-34, -32, 0)),  # 6
    Part.LineSegment(V(-34, -32, 0), V(-14, -32, 0)),  # 7
    Part.LineSegment(V(34, -32, 0), V(34, -38, 0)),  # 8
    Part.LineSegment(V(34, -38, 0), V(14, -38, 0)),  # 9
    Part.LineSegment(V(14, -38, 0), V(14, -32, 0)),  # 10
    Part.LineSegment(V(14, -32, 0), V(34, -32, 0)),  # 11
    Part.LineSegment(V(119, -32, 0), V(119, -38, 0)),  # 12
    Part.LineSegment(V(119, -38, 0), V(109, -38, 0)),  # 13
    Part.LineSegment(V(109, -38, 0), V(109, -32, 0)),  # 14
    Part.LineSegment(V(109, -32, 0), V(119, -32, 0)),  # 15
], False)
sketch5.addConstraint([
    Sketcher.Constraint("Coincident", 0, 2, 1, 1),
    Sketcher.Constraint("Coincident", 1, 2, 2, 1),
    Sketcher.Constraint("Coincident", 2, 2, 3, 1),
    Sketcher.Constraint("Coincident", 3, 2, 0, 1),
    Sketcher.Constraint("Coincident", 4, 2, 5, 1),
    Sketcher.Constraint("Coincident", 5, 2, 6, 1),
    Sketcher.Constraint("Coincident", 6, 2, 7, 1),
    Sketcher.Constraint("Coincident", 7, 2, 4, 1),
    Sketcher.Constraint("Coincident", 8, 2, 9, 1),
    Sketcher.Constraint("Coincident", 9, 2, 10, 1),
    Sketcher.Constraint("Coincident", 10, 2, 11, 1),
    Sketcher.Constraint("Coincident", 11, 2, 8, 1),
    Sketcher.Constraint("Coincident", 12, 2, 13, 1),
    Sketcher.Constraint("Coincident", 13, 2, 14, 1),
    Sketcher.Constraint("Coincident", 14, 2, 15, 1),
    Sketcher.Constraint("Coincident", 15, 2, 12, 1),
    Sketcher.Constraint("Vertical", 0),
    Sketcher.Constraint("Horizontal", 1),
    Sketcher.Constraint("Vertical", 2),
    Sketcher.Constraint("Horizontal", 3),
    Sketcher.Constraint("Vertical", 4),
    Sketcher.Constraint("Horizontal", 5),
    Sketcher.Constraint("Vertical", 6),
    Sketcher.Constraint("Horizontal", 7),
    Sketcher.Constraint("Vertical", 8),
    Sketcher.Constraint("Horizontal", 9),
    Sketcher.Constraint("Vertical", 10),
    Sketcher.Constraint("Horizontal", 11),
    Sketcher.Constraint("Vertical", 12),
    Sketcher.Constraint("Horizontal", 13),
    Sketcher.Constraint("Vertical", 14),
    Sketcher.Constraint("Horizontal", 15),
    Sketcher.Constraint("Symmetric", 5, 2, 8, 2, -2),
    Sketcher.Constraint("Symmetric", 7, 2, 10, 2, -2),
    Sketcher.Constraint("Symmetric", 1, 2, 12, 2, -2),
    Sketcher.Constraint("Symmetric", 3, 2, 14, 2, -2),
    Sketcher.Constraint("Horizontal", 1, 2, 4, 2),
    Sketcher.Constraint("Horizontal", 3, 2, 6, 2),
    Sketcher.Constraint("DistanceX", 1, 2, 1, 1, Q("10 mm")),
    Sketcher.Constraint("DistanceX", 5, 2, 5, 1, Q("20 mm")),
    Sketcher.Constraint("DistanceY", 0, 2, 0, 1, Q("6 mm")),
    Sketcher.Constraint("DistanceX", 0, 2, -1, 1, Q("109 mm")),
    Sketcher.Constraint("DistanceX", 4, 2, -1, 1, Q("14 mm")),
    Sketcher.Constraint("DistanceY", 0, 2, -1, 1, Q("38.02241 mm")),
])
sketch5.setExpression("Constraints[38]", "Params.sketch5_width")
sketch5.setExpression("Constraints[39]", "Params.sketch5_width2")
sketch5.setExpression("Constraints[40]", "Params.sketch5_height")
pocket4 = doc.addObject("PartDesign::Pocket", "Pocket003")
body.addObject(pocket4)
pocket4.Profile = sketch5
pocket4.setExpression("Length", "Params.pocket4_length")
pocket4.Reversed = True

# Sketch on XY plane
sketch6 = doc.addObject("Sketcher::SketchObject", "Sketch005")
body.addObject(sketch6)
sketch6.AttachmentSupport = (doc.XY_Plane, [""])
sketch6.MapMode = "FlatFace"
sketch6.addGeometry([
    Part.Circle(V(140, 3.5, 0), V(0, 0, 1), 1.6),  # 0
    Part.Circle(V(140, 53.5, 0), V(0, 0, 1), 1.6),  # 1
    Part.Circle(V(-140, 53.5, 0), V(0, 0, 1), 1.6),  # 2
    Part.Circle(V(-140, 3.5, 0), V(0, 0, 1), 1.6),  # 3
    Part.Circle(V(39, -35, 0), V(0, 0, 1), 1.5),  # 4
    Part.Circle(V(-9, -35, 0), V(0, 0, 1), 1.5),  # 5
    Part.Circle(V(-39, -35, 0), V(0, 0, 1), 1.5),  # 6
    Part.Circle(V(9, -35, 0), V(0, 0, 1), 1.5),  # 7
    Part.Circle(V(78.5, 49.5, 0), V(0, 0, 1), 2),  # 8
    Part.Circle(V(78.5, 7.5, 0), V(0, 0, 1), 2),  # 9
    Part.Circle(V(60, 48, 0), V(0, 0, 1), 2),  # 10
    Part.Circle(V(60, 9, 0), V(0, 0, 1), 2),  # 11
    Part.Circle(V(-60, 9, 0), V(0, 0, 1), 2),  # 12
    Part.Circle(V(-60, 48, 0), V(0, 0, 1), 2),  # 13
    Part.Circle(V(50, 46, 0), V(0, 0, 1), 2),  # 14
    Part.Circle(V(-50, 46, 0), V(0, 0, 1), 2),  # 15
    Part.Circle(V(-50, 11, 0), V(0, 0, 1), 2),  # 16
    Part.Circle(V(50, 11, 0), V(0, 0, 1), 2),  # 17
    Part.Circle(V(-78.5, 7.5, 0), V(0, 0, 1), 2),  # 18
    Part.Circle(V(-78.5, 49.5, 0), V(0, 0, 1), 2),  # 19
    Part.Circle(V(-104.5, -27.2, 0), V(0, 0, 1), 1.5),  # 20
    Part.Circle(V(-104.5, -50.2, 0), V(0, 0, 1), 1.5),  # 21
    Part.Circle(V(104.5, -50.2, 0), V(0, 0, 1), 1.5),  # 22
    Part.Circle(V(104.5, -27.2, 0), V(0, 0, 1), 1.5),  # 23
], False)
sketch6.addConstraint([
    Sketcher.Constraint("Equal", 0, 1),
    Sketcher.Constraint("Equal", 1, 2),
    Sketcher.Constraint("Equal", 2, 3),
    Sketcher.Constraint("Equal", 4, 5),
    Sketcher.Constraint("Equal", 5, 6),
    Sketcher.Constraint("Equal", 6, 7),
    Sketcher.Constraint("Equal", 8, 9),
    Sketcher.Constraint("Equal", 9, 10),
    Sketcher.Constraint("Equal", 10, 11),
    Sketcher.Constraint("Equal", 11, 12),
    Sketcher.Constraint("Equal", 12, 13),
    Sketcher.Constraint("Equal", 13, 14),
    Sketcher.Constraint("Equal", 14, 15),
    Sketcher.Constraint("Equal", 15, 16),
    Sketcher.Constraint("Equal", 16, 17),
    Sketcher.Constraint("Equal", 17, 18),
    Sketcher.Constraint("Equal", 18, 19),
    Sketcher.Constraint("Equal", 7, 20),
    Sketcher.Constraint("Equal", 20, 21),
    Sketcher.Constraint("Equal", 21, 22),
    Sketcher.Constraint("Equal", 22, 23),
    Sketcher.Constraint("Symmetric", 1, 3, 2, 3, -2),
    Sketcher.Constraint("Symmetric", 0, 3, 3, 3, -2),
    Sketcher.Constraint("Symmetric", 4, 3, 6, 3, -2),
    Sketcher.Constraint("Symmetric", 5, 3, 7, 3, -2),
    Sketcher.Constraint("Symmetric", 11, 3, 12, 3, -2),
    Sketcher.Constraint("Symmetric", 10, 3, 13, 3, -2),
    Sketcher.Constraint("Symmetric", 14, 3, 15, 3, -2),
    Sketcher.Constraint("Symmetric", 16, 3, 17, 3, -2),
    Sketcher.Constraint("Symmetric", 9, 3, 18, 3, -2),
    Sketcher.Constraint("Symmetric", 8, 3, 19, 3, -2),
    Sketcher.Constraint("Symmetric", 21, 3, 22, 3, -2),
    Sketcher.Constraint("Symmetric", 20, 3, 23, 3, -2),
    Sketcher.Constraint("Horizontal", 4, 3, 5, 3),
    Sketcher.Constraint("Vertical", 0, 3, 1, 3),
    Sketcher.Constraint("Vertical", 8, 3, 9, 3),
    Sketcher.Constraint("Vertical", 10, 3, 11, 3),
    Sketcher.Constraint("Vertical", 15, 3, 16, 3),
    Sketcher.Constraint("Vertical", 20, 3, 21, 3),
    Sketcher.Constraint("Diameter", 4, Q("3 mm")),
    Sketcher.Constraint("Diameter", 8, Q("4 mm")),
    Sketcher.Constraint("Diameter", 0, Q("3.3 mm")),
    Sketcher.Constraint("DistanceX", -1, 1, 0, 3, Q("140 mm")),
    Sketcher.Constraint("DistanceX", -1, 1, 4, 3, Q("39 mm")),
    Sketcher.Constraint("DistanceX", 5, 3, -1, 1, Q("9 mm")),
    Sketcher.Constraint("DistanceX", -1, 1, 10, 3, Q("60 mm")),
    Sketcher.Constraint("DistanceX", -1, 1, 14, 3, Q("50 mm")),
    Sketcher.Constraint("DistanceY", 0, 3, 1, 3, Q("50 mm")),
    Sketcher.Constraint("DistanceY", 8, 3, 1, 3, Q("4 mm")),
    Sketcher.Constraint("DistanceY", 9, 3, 8, 3, Q("42 mm")),
    Sketcher.Constraint("DistanceY", 4, 3, 10, 3, Q("83 mm")),
    Sketcher.Constraint("DistanceY", 14, 3, 10, 3, Q("2 mm")),
    Sketcher.Constraint("DistanceY", 16, 3, 15, 3, Q("35 mm")),
    Sketcher.Constraint("DistanceX", 20, 3, 18, 3, Q("26 mm")),
    Sketcher.Constraint("DistanceY", 21, 3, 20, 3, Q("23 mm")),
    Sketcher.Constraint("DistanceX", -1, 1, 8, 3, Q("78.5 mm")),
    Sketcher.Constraint("DistanceY", 4, 3, 0, 3, Q("38.5 mm")),
    Sketcher.Constraint("DistanceY", 20, 3, 18, 3, Q("34.7 mm")),
    Sketcher.Constraint("DistanceY", -1, 1, 0, 3, Q("3.47759 mm")),
    Sketcher.Constraint("DistanceY", -1, 1, 11, 3, Q("8.977895 mm")),
])
sketch6.setExpression("Constraints[39]", "Params.sketch6_diameter")
sketch6.setExpression("Constraints[40]", "Params.sketch6_diameter2")
sketch6.setExpression("Constraints[41]", "Params.sketch6_diameter3")
pocket5 = doc.addObject("PartDesign::Pocket", "Pocket004")
body.addObject(pocket5)
pocket5.Profile = sketch6
pocket5.setExpression("Length", "Params.pocket5_length")
pocket5.Reversed = True

doc.recompute()
